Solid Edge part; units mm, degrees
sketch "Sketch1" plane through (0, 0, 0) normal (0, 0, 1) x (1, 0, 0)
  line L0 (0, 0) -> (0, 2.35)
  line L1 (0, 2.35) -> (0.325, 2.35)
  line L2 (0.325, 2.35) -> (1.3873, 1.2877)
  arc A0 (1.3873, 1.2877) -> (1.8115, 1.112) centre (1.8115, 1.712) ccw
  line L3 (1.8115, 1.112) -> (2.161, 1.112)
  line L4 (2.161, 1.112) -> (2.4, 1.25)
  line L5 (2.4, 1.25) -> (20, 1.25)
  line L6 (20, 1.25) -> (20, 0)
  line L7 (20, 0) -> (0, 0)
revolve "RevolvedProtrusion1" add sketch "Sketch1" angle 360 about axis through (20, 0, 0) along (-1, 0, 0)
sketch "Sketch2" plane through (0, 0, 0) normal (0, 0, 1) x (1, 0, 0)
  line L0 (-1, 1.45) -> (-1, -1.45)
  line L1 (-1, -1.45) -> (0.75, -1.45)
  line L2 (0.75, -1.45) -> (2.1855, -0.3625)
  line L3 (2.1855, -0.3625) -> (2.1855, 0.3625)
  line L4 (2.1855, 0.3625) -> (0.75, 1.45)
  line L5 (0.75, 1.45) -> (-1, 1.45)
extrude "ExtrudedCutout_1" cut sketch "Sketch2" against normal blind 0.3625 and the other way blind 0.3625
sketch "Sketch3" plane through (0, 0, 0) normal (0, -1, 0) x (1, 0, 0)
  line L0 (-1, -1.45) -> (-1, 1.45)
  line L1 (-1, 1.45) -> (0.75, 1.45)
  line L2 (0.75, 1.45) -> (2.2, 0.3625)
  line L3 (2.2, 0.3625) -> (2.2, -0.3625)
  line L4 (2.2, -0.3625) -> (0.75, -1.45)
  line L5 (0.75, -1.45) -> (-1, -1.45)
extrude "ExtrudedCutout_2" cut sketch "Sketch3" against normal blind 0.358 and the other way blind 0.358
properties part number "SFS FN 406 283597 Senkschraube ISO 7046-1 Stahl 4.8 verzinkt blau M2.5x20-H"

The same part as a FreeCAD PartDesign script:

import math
import FreeCAD as App
import Part
import Sketcher

V = App.Vector
Q = App.Units.Quantity


def add_polygon(sketch, points):
    """Adds a closed chain of lines whose ends are joined by coincident constraints."""
    first, n = sketch.GeometryCount, len(points)
    for a, b in zip(points, points[1:] + points[:1]):
        sketch.addGeometry(Part.LineSegment(App.Vector(*a, 0), App.Vector(*b, 0)), False)
    for i in range(n):
        sketch.addConstraint(Sketcher.Constraint("Coincident", first + i, 2, first + (i + 1) % n, 1))

doc = App.newDocument("Part")
params = doc.addObject("Spreadsheet::Sheet", "Params")
for row, (alias, value) in enumerate([
    ("sketch1_radius", "0.6 mm"),
    ("sketch1_width", "20 mm"),
    ("sketch1_width2", "17.6 mm"),
    ("sketch1_height", "2.35 mm"),
    ("sketch1_height2", "1.25 mm"),
    ("revolution_angle", "360 deg"),
    ("sketch2_height", "2.9 mm"),
    ("sketch2_width", "1.75 mm"),
    ("pocket1_length", "0.3625 mm"),
    ("pocket1_length2", "0.3625 mm"),
    ("sketch3_height", "2.9 mm"),
    ("sketch3_width", "1.75 mm"),
    ("pocket2_length", "0.358 mm"),
    ("pocket2_length2", "0.358 mm"),
], start=1):
    params.set(f"A{row}", alias)
    params.set(f"B{row}", "=" + value)
    params.setAlias(f"B{row}", alias)

body = doc.addObject("PartDesign::Body", "Body")

# Sketch on XY plane
sketch1 = body.newObject("Sketcher::SketchObject", "Sketch")
sketch1.AttachmentSupport = (doc.getObject("XY_Plane"), [""])
sketch1.MapMode = "FlatFace"
sketch1.addGeometry([
    Part.LineSegment(V(0, 2.35, 0), V(0, 0, 0)),  # 0
    Part.LineSegment(V(0, 0, 0), V(20, 0, 0)),  # 1
    Part.LineSegment(V(20, 0, 0), V(20, 1.25, 0)),  # 2
    Part.LineSegment(V(20, 1.25, 0), V(2.4, 1.25, 0)),  # 3
    Part.LineSegment(V(2.4, 1.25, 0), V(2.16, 1.11, 0)),  # 4
    Part.LineSegment(V(2.16, 1.11, 0), V(1.81, 1.11, 0)),  # 5
    Part.ArcOfCircle(Part.Circle(V(1.81, 1.71, 0), V(0, 0, 1), 0.6), math.radians(-135), math.radians(-90)),  # 6
    Part.LineSegment(V(1.39, 1.29, 0), V(0.33, 2.35, 0)),  # 7
    Part.LineSegment(V(0.33, 2.35, 0), V(0, 2.35, 0)),  # 8
], False)
sketch1.addConstraint([
    Sketcher.Constraint("Coincident", 0, 2, 1, 1),
    Sketcher.Constraint("Coincident", 1, 2, 2, 1),
    Sketcher.Constraint("Coincident", 2, 2, 3, 1),
    Sketcher.Constraint("Coincident", 3, 2, 4, 1),
    Sketcher.Constraint("Coincident", 4, 2, 5, 1),
    Sketcher.Constraint("Tangent", 5, 2, 6, 2),
    Sketcher.Constraint("Tangent", 6, 1, 7, 1),
    Sketcher.Constraint("Coincident", 7, 2, 8, 1),
    Sketcher.Constraint("Coincident", 8, 2, 0, 1),
    Sketcher.Constraint("Vertical", 0),
    Sketcher.Constraint("Horizontal", 1),
    Sketcher.Constraint("Vertical", 2),
    Sketcher.Constraint("Horizontal", 3),
    Sketcher.Constraint("Horizontal", 5),
    Sketcher.Constraint("Horizontal", 8),
    Sketcher.Constraint("Coincident", 0, 2, -1, 1),
    Sketcher.Constraint("Radius", 6, Q("0.6 mm")),
    Sketcher.Constraint("DistanceX", 1, 1, 1, 2, Q("20 mm")),
    Sketcher.Constraint("Angle", 7, Q("135 deg")),
    Sketcher.Constraint("DistanceX", 3, 2, 3, 1, Q("17.6 mm")),
    Sketcher.Constraint("DistanceY", 0, 2, 0, 1, Q("2.35 mm")),
    Sketcher.Constraint("DistanceY", 2, 1, 2, 2, Q("1.25 mm")),
    Sketcher.Constraint("DistanceX", 8, 2, 8, 1, Q("0.325 mm")),
    Sketcher.Constraint("Distance", 4, Q("0.276 mm")),
    Sketcher.Constraint("DistanceX", 5, 2, 5, 1, Q("0.3495 mm")),
])
sketch1.setExpression("Constraints[16]", "Params.sketch1_radius")
sketch1.setExpression("Constraints[17]", "Params.sketch1_width")
sketch1.setExpression("Constraints[19]", "Params.sketch1_width2")
sketch1.setExpression("Constraints[20]", "Params.sketch1_height")
sketch1.setExpression("Constraints[21]", "Params.sketch1_height2")
revolution = body.newObject("PartDesign::Revolution", "Revolution")
revolution.Profile = sketch1
revolution.ReferenceAxis = (sketch1, ["H_Axis"])
revolution.setExpression("Angle", "Params.revolution_angle")

# Sketch on XY plane
sketch2 = body.newObject("Sketcher::SketchObject", "Sketch001")
sketch2.AttachmentSupport = (doc.getObject("XY_Plane"), [""])
sketch2.MapMode = "FlatFace"
add_polygon(sketch2, [(0.8, 1.4), (-1, 1.4), (-1, -1.4), (0.8, -1.4), (2.2, -0.4), (2.2, 0.4)])  # lines 0-5
sketch2.addConstraint([
    Sketcher.Constraint("Horizontal", 0),
    Sketcher.Constraint("Vertical", 1),
    Sketcher.Constraint("Horizontal", 2),
    Sketcher.Constraint("Vertical", 4),
    Sketcher.Constraint("Symmetric", 2, 2, 5, 2, -1),
    Sketcher.Constraint("Equal", 3, 5),
    Sketcher.Constraint("DistanceY", 1, 2, 1, 1, Q("2.9 mm")),
    Sketcher.Constraint("DistanceX", 0, 2, -1, 1, Q("1 mm")),
    Sketcher.Constraint("DistanceX", 0, 2, 0, 1, Q("1.75 mm")),
    Sketcher.Constraint("DistanceY", 4, 1, 4, 2, Q("0.725 mm")),
    Sketcher.Constraint("Distance", 3, Q("1.801 mm")),
])
sketch2.setExpression("Constraints[12]", "Params.sketch2_height")
sketch2.setExpression("Constraints[14]", "Params.sketch2_width")
pocket1 = body.newObject("PartDesign::Pocket", "Pocket")
pocket1.Profile = sketch2
pocket1.Type = "TwoLengths"
pocket1.setExpression("Length", "Params.pocket1_length")
pocket1.setExpression("Length2", "Params.pocket1_length2")

# Sketch on XZ plane
sketch3 = body.newObject("Sketcher::SketchObject", "Sketch002")
sketch3.AttachmentSupport = (doc.getObject("XZ_Plane"), [""])
sketch3.MapMode = "FlatFace"
add_polygon(sketch3, [(-1, 1.4), (-1, -1.4), (0.8, -1.4), (2.2, -0.4), (2.2, 0.4), (0.8, 1.4)])  # lines 0-5
sketch3.addConstraint([
    Sketcher.Constraint("Vertical", 0),
    Sketcher.Constraint("Horizontal", 1),
    Sketcher.Constraint("Vertical", 3),
    Sketcher.Constraint("Horizontal", 5),
    Sketcher.Constraint("Symmetric", 1, 2, 4, 2, -1),
    Sketcher.Constraint("Equal", 2, 4),
    Sketcher.Constraint("DistanceY", 0, 2, 0, 1, Q("2.9 mm")),
    Sketcher.Constraint("DistanceX", 0, 2, -1, 1, Q("1 mm")),
    Sketcher.Constraint("DistanceX", 1, 1, 1, 2, Q("1.75 mm")),
    Sketcher.Constraint("DistanceX", -1, 1, 2, 2, Q("2.2 mm")),
    Sketcher.Constraint("Angle", 2, Q("36.87 deg")),
])
sketch3.setExpression("Constraints[12]", "Params.sketch3_height")
sketch3.setExpression("Constraints[14]", "Params.sketch3_width")
pocket2 = body.newObject("PartDesign::Pocket", "Pocket001")
pocket2.Profile = sketch3
pocket2.Type = "TwoLengths"
pocket2.setExpression("Length", "Params.pocket2_length")
pocket2.setExpression("Length2", "Params.pocket2_length2")

doc.recompute()
